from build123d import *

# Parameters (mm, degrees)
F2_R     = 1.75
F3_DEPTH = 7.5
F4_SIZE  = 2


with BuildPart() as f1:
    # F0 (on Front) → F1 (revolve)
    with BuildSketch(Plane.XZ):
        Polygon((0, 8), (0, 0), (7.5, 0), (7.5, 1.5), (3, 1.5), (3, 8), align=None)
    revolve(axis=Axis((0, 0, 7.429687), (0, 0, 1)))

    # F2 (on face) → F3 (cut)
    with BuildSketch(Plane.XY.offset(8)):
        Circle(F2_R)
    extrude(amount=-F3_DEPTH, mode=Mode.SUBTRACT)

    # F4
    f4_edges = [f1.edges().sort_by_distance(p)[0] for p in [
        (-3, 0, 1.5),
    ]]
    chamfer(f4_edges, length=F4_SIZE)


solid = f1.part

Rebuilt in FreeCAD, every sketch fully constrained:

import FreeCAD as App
import Part
import Sketcher
from FreeCAD import Vector
Q = App.Units.Quantity


def edges_at(feature, points):
    """Names of the edges that pass closest to the given points."""
    edges = feature.Shape.Edges
    near = lambda p: min(range(len(edges)), key=lambda i: edges[i].distToShape(Part.Vertex(*p))[0])
    return sorted({f"Edge{near(p) + 1}" for p in points})

doc = App.newDocument("Part")
params = doc.addObject("Spreadsheet::Sheet", "Params")
for row, (alias, value) in enumerate([
    ("sketch1_width", "3 mm"),
    ("sketch1_height", "8 mm"),
    ("sketch1_width2", "7.5 mm"),
    ("sketch1_height2", "1.5 mm"),
    ("revolution_angle", "360 deg"),
    ("sketch2_diameter", "3.5 mm"),
    ("pocket1_length", "7.5 mm"),
    ("chamfer_size", "2 mm"),
], start=1):
    params.set(f"A{row}", alias)
    params.set(f"B{row}", "=" + value)
    params.setAlias(f"B{row}", alias)

body = doc.addObject("PartDesign::Body", "Body")

# Sketch on XZ plane
sketch1 = doc.addObject("Sketcher::SketchObject", "Sketch")
body.addObject(sketch1)
sketch1.AttachmentSupport = (doc.XZ_Plane, [""])
sketch1.MapMode = "FlatFace"
sketch1.addGeometry(Part.LineSegment(Vector(0, 8, 0), Vector(0, 0, 0)), False)
sketch1.addGeometry(Part.LineSegment(Vector(0, 0, 0), Vector(7.5, 0, 0)), False)
sketch1.addGeometry(Part.LineSegment(Vector(7.5, 0, 0), Vector(7.5, 1.5, 0)), False)
sketch1.addGeometry(Part.LineSegment(Vector(7.5, 1.5, 0), Vector(3, 1.5, 0)), False)
sketch1.addGeometry(Part.LineSegment(Vector(3, 1.5, 0), Vector(3, 8, 0)), False)
sketch1.addGeometry(Part.LineSegment(Vector(3, 8, 0), Vector(0, 8, 0)), False)
sketch1.addConstraint(Sketcher.Constraint("Coincident", 0, 2, 1, 1))
sketch1.addConstraint(Sketcher.Constraint("Coincident", 1, 2, 2, 1))
sketch1.addConstraint(Sketcher.Constraint("Coincident", 2, 2, 3, 1))
sketch1.addConstraint(Sketcher.Constraint("Coincident", 3, 2, 4, 1))
sketch1.addConstraint(Sketcher.Constraint("Coincident", 4, 2, 5, 1))
sketch1.addConstraint(Sketcher.Constraint("Coincident", 5, 2, 0, 1))
sketch1.addConstraint(Sketcher.Constraint("Vertical", 0))
sketch1.addConstraint(Sketcher.Constraint("Horizontal", 1))
sketch1.addConstraint(Sketcher.Constraint("Vertical", 2))
sketch1.addConstraint(Sketcher.Constraint("Horizontal", 3))
sketch1.addConstraint(Sketcher.Constraint("Vertical", 4))
sketch1.addConstraint(Sketcher.Constraint("Horizontal", 5))
sketch1.addConstraint(Sketcher.Constraint("Coincident", 0, 2, -1, 1))
sketch1.addConstraint(Sketcher.Constraint("DistanceX", 5, 2, 5, 1, Q("3 mm")))
sketch1.addConstraint(Sketcher.Constraint("DistanceY", 0, 2, 0, 1, Q("8 mm")))
sketch1.addConstraint(Sketcher.Constraint("DistanceX", 1, 1, 1, 2, Q("7.5 mm")))
sketch1.addConstraint(Sketcher.Constraint("DistanceY", 2, 1, 2, 2, Q("1.5 mm")))
sketch1.setExpression("Constraints[13]", "Params.sketch1_width")
sketch1.setExpression("Constraints[14]", "Params.sketch1_height")
sketch1.setExpression("Constraints[15]", "Params.sketch1_width2")
sketch1.setExpression("Constraints[16]", "Params.sketch1_height2")
revolution = doc.addObject("PartDesign::Revolution", "Revolution")
body.addObject(revolution)
revolution.Profile = sketch1
revolution.ReferenceAxis = (sketch1, ["V_Axis"])
revolution.setExpression("Angle", "Params.revolution_angle")

# Sketch on XY plane
sketch2 = doc.addObject("Sketcher::SketchObject", "Sketch001")
body.addObject(sketch2)
sketch2.AttachmentSupport = (doc.XY_Plane, [""])
sketch2.MapMode = "FlatFace"
sketch2.AttachmentOffset = App.Placement(Vector(0, 0, 8), App.Rotation())
sketch2.addGeometry(Part.Circle(Vector(0, 0, 0), Vector(0, 0, 1), 1.8), False)
sketch2.addConstraint(Sketcher.Constraint("Coincident", 0, 3, -1, 1))
sketch2.addConstraint(Sketcher.Constraint("Diameter", 0, Q("3.5 mm")))
sketch2.setExpression("Constraints[1]", "Params.sketch2_diameter")
pocket1 = doc.addObject("PartDesign::Pocket", "Pocket")
body.addObject(pocket1)
pocket1.Profile = sketch2
pocket1.setExpression("Length", "Params.pocket1_length")
doc.recompute()

chamfer = doc.addObject("PartDesign::Chamfer", "Chamfer")
body.addObject(chamfer)
chamfer.Base = (pocket1, edges_at(pocket1, [(-3, 0, 1.5)]))
chamfer.setExpression("Size", "Params.chamfer_size")

doc.recompute()
